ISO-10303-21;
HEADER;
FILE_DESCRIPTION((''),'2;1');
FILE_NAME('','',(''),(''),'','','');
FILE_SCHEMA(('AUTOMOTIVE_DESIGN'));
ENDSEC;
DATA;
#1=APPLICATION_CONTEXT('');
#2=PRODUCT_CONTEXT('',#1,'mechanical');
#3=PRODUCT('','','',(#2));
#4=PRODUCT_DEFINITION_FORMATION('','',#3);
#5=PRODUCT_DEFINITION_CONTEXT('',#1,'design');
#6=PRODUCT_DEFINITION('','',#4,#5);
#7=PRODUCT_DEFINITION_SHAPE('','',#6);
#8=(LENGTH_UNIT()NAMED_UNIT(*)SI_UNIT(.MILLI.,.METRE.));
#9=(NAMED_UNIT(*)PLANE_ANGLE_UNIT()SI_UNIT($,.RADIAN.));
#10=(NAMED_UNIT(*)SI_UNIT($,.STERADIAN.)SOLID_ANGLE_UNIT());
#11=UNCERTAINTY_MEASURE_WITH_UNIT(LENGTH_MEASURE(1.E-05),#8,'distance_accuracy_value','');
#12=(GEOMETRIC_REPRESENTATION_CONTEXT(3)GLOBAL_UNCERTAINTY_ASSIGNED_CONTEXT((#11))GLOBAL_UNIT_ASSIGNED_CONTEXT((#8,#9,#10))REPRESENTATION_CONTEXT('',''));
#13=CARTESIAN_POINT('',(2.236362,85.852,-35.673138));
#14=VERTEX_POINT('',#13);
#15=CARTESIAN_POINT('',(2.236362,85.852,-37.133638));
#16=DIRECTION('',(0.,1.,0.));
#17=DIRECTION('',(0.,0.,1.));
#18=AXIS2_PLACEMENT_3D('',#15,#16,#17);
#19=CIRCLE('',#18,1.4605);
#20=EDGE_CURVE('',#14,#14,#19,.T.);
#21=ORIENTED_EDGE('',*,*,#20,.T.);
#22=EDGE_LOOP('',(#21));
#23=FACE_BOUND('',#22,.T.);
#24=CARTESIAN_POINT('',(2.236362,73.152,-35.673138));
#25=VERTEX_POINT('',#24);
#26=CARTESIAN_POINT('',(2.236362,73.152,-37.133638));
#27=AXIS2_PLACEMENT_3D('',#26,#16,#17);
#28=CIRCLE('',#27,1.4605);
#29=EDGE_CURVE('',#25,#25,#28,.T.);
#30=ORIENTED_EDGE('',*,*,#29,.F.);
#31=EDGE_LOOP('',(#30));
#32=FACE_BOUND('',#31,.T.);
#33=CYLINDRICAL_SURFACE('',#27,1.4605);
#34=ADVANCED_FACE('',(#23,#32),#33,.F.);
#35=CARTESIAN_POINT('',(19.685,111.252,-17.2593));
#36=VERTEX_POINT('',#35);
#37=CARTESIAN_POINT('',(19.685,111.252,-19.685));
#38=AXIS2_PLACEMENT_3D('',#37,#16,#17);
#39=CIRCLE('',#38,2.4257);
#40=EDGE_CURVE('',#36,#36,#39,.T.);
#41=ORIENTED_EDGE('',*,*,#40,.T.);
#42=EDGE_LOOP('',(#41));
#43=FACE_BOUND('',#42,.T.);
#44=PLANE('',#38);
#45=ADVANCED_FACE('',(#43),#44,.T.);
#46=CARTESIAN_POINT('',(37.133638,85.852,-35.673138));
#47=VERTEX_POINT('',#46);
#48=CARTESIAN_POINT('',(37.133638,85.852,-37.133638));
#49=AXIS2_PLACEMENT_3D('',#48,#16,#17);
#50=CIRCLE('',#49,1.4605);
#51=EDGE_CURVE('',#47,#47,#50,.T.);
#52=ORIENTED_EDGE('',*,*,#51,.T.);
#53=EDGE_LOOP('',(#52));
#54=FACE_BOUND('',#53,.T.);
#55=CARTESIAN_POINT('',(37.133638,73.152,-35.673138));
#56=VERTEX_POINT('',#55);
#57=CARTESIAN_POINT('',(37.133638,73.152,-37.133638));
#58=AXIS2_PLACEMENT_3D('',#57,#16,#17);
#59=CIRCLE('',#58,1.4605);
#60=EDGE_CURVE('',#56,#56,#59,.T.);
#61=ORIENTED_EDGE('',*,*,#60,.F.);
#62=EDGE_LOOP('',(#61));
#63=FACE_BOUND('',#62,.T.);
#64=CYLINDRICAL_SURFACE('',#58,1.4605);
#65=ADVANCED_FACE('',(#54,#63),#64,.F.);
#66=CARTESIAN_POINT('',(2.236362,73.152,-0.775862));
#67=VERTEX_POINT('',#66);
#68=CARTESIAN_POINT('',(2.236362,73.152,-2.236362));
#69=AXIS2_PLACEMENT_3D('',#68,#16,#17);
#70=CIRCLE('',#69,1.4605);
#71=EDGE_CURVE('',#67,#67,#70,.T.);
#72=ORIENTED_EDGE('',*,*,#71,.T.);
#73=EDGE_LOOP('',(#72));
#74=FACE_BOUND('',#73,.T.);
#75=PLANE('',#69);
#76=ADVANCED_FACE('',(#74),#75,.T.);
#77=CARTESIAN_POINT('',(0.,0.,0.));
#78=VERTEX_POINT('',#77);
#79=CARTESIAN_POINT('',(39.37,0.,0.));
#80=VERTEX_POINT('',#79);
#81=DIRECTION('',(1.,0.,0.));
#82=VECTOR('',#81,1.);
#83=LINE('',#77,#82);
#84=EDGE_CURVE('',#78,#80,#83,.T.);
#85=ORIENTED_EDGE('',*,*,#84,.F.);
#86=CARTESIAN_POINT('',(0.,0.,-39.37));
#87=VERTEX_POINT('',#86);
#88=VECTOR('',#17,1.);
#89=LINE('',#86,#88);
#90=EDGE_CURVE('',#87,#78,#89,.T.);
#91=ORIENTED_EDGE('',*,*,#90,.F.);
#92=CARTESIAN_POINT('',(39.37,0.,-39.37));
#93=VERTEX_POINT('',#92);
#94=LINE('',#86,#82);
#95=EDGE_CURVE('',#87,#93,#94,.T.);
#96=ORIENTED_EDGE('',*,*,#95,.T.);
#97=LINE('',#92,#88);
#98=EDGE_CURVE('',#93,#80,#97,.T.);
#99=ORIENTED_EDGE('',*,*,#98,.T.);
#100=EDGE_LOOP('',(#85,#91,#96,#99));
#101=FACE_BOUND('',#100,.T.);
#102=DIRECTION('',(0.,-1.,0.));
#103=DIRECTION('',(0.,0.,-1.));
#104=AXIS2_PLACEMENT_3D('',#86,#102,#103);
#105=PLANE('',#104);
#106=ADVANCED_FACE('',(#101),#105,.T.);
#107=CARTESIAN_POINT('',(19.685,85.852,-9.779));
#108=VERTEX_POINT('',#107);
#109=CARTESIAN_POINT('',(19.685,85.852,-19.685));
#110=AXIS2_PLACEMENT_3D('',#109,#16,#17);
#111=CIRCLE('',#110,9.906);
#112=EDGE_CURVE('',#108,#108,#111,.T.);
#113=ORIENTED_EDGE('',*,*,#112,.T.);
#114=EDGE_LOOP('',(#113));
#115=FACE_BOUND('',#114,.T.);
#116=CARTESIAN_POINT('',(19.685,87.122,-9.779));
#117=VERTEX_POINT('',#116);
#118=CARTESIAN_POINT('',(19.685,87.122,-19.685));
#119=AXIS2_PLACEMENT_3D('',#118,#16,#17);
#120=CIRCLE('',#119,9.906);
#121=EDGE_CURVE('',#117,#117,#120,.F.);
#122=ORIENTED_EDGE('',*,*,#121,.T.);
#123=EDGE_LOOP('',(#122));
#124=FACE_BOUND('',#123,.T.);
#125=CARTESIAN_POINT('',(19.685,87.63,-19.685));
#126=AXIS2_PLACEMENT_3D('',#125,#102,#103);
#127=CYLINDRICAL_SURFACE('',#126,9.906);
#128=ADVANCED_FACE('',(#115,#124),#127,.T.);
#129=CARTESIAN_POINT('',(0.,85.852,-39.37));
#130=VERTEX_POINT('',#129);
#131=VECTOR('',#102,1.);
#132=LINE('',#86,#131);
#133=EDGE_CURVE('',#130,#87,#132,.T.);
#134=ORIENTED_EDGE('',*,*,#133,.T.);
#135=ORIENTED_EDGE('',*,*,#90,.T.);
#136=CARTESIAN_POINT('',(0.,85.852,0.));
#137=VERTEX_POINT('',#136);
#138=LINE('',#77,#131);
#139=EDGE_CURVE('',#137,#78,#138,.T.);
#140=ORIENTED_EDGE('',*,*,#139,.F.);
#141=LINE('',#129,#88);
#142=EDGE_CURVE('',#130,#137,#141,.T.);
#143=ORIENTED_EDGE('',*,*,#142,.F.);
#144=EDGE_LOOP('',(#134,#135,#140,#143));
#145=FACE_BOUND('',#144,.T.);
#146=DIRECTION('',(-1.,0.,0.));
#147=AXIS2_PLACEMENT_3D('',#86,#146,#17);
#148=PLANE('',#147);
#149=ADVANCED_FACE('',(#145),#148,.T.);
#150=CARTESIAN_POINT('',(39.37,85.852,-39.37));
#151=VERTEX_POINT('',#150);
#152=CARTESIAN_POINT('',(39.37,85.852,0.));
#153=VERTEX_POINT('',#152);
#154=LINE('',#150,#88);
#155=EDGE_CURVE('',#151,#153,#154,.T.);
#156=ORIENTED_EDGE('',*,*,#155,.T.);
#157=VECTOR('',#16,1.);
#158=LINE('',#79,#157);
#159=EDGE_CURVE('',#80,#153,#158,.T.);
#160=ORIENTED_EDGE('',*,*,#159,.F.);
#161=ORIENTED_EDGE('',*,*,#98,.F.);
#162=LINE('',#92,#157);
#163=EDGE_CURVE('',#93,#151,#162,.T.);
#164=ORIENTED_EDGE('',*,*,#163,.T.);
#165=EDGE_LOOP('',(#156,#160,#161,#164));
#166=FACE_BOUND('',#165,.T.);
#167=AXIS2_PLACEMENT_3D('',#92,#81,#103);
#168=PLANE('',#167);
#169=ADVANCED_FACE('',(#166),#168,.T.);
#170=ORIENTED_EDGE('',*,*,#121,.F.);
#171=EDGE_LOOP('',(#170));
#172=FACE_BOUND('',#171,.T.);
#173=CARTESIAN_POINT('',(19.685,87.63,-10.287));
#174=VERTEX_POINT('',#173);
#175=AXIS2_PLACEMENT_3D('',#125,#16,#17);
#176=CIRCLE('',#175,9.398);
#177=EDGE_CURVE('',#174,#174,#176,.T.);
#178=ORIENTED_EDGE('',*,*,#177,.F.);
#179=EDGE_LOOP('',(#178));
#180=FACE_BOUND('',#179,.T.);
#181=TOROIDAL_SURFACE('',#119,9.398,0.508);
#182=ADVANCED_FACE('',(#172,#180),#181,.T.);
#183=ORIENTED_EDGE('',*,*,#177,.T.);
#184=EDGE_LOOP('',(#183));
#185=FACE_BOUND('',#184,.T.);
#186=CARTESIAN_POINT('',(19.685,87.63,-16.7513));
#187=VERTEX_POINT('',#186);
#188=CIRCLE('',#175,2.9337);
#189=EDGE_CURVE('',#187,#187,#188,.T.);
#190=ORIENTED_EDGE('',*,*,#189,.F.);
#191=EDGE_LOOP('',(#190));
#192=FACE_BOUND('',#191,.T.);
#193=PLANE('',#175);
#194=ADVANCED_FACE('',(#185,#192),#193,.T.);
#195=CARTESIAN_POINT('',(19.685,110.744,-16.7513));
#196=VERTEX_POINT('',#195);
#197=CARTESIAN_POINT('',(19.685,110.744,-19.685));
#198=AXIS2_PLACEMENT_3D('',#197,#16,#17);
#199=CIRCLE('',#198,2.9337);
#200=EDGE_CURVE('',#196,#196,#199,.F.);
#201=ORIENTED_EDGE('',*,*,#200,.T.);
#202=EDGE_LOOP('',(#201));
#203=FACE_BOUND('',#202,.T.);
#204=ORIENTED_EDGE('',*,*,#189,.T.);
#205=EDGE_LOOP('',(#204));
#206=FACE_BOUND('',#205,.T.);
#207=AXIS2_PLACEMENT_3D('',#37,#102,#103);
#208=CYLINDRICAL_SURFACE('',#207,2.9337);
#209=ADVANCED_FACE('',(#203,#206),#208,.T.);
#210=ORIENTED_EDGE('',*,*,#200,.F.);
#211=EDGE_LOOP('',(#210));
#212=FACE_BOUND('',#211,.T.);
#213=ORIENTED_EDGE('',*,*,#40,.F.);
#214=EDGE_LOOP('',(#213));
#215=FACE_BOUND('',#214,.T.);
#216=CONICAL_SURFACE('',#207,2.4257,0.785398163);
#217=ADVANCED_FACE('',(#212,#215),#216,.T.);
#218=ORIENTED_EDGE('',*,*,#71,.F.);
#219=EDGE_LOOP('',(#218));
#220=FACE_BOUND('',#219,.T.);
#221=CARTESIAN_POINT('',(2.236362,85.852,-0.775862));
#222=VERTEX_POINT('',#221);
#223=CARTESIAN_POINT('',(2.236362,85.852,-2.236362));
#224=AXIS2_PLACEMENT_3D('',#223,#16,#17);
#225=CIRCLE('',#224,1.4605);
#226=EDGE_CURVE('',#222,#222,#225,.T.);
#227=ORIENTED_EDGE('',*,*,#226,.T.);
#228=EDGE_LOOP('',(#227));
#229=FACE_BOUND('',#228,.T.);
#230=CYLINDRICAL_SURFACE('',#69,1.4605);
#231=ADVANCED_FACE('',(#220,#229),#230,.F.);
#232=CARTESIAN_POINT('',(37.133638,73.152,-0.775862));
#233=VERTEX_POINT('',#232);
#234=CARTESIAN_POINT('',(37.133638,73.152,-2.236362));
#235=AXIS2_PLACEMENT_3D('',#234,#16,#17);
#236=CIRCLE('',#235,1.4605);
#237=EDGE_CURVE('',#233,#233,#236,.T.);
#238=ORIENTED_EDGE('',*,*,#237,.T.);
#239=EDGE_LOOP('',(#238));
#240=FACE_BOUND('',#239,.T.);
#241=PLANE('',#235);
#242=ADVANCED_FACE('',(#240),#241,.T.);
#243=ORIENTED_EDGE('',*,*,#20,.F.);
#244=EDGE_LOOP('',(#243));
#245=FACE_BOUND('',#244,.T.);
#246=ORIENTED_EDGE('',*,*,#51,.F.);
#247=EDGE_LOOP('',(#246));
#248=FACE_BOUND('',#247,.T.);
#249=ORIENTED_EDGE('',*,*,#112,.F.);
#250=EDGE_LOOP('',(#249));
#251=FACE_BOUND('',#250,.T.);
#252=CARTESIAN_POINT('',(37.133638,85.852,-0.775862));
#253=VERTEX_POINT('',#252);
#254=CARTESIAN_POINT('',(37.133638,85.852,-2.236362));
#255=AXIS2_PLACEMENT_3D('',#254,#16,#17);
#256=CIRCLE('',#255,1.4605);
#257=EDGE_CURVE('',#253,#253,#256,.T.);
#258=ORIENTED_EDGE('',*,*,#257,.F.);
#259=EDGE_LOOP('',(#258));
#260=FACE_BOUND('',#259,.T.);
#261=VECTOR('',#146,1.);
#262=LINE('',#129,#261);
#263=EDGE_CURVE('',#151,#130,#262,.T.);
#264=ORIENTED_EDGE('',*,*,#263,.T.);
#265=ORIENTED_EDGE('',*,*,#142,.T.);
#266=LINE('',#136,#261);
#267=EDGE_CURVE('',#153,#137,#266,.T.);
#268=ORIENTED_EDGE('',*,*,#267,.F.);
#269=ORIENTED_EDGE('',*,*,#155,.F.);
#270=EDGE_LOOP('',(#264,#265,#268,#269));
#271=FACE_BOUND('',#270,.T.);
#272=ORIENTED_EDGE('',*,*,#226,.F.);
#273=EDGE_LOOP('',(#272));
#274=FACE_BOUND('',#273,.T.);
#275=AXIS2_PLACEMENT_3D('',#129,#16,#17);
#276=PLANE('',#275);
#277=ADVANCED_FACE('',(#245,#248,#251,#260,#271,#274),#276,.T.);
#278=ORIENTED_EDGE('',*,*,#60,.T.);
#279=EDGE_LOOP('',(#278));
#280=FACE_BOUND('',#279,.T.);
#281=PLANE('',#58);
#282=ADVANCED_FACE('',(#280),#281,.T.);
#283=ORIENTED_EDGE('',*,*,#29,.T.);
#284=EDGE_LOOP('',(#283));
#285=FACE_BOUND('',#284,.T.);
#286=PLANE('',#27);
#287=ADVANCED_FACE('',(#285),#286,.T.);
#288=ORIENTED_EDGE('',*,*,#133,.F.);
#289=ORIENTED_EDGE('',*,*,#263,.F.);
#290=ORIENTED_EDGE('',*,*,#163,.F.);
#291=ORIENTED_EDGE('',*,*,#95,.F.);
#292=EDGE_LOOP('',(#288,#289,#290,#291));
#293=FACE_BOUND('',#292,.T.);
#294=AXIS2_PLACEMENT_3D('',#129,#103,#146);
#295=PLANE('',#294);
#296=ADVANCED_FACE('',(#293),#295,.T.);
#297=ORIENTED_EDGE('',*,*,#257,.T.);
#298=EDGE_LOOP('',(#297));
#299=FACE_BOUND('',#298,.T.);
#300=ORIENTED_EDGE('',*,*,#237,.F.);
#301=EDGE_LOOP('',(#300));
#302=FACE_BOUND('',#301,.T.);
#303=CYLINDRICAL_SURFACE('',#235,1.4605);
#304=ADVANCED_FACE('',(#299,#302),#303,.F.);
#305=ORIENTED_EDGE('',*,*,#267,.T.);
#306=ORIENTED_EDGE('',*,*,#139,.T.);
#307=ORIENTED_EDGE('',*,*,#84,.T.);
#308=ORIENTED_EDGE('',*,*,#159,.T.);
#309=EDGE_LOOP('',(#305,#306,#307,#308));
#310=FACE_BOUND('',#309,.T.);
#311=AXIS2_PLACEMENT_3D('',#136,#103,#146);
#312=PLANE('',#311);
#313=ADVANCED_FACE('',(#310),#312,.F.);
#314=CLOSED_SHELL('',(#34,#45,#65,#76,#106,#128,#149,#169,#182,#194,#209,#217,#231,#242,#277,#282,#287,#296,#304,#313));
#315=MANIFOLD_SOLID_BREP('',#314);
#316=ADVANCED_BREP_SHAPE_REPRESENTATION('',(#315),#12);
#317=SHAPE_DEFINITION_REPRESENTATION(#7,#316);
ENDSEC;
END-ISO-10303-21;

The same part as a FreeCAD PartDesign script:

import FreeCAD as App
import Part
import Sketcher

V = App.Vector
Q = App.Units.Quantity


def edges_at(feature, points):
    """Names of the edges that pass closest to the given points."""
    edges = feature.Shape.Edges
    near = lambda p: min(range(len(edges)), key=lambda i: edges[i].distToShape(Part.Vertex(*p))[0])
    return sorted({f"Edge{near(p) + 1}" for p in points})

doc = App.newDocument("Part")
body = doc.addObject("PartDesign::Body", "Body")

sketch1 = body.newObject("Sketcher::SketchObject", "Sketch")
sketch1.AttachmentSupport = (doc.getObject("XY_Plane"), [""])
sketch1.MapMode = "FlatFace"
sketch1.addGeometry([
    Part.LineSegment(V(0, 86, 0), V(0, 0, 0)),
    Part.LineSegment(V(0, 0, 0), V(39, 0, 0)),
    Part.LineSegment(V(39, 0, 0), V(39, 86, 0)),
    Part.LineSegment(V(39, 86, 0), V(0, 86, 0)),
], False)
sketch1.addConstraint([
    Sketcher.Constraint("Coincident", 0, 2, 1, 1),
    Sketcher.Constraint("Coincident", 1, 2, 2, 1),
    Sketcher.Constraint("Coincident", 2, 2, 3, 1),
    Sketcher.Constraint("Coincident", 3, 2, 0, 1),
    Sketcher.Constraint("Vertical", 0),
    Sketcher.Constraint("Horizontal", 1),
    Sketcher.Constraint("Vertical", 2),
    Sketcher.Constraint("Horizontal", 3),
    Sketcher.Constraint("Coincident", 0, 2, -1, 1),
    Sketcher.Constraint("DistanceX", 1, 1, 1, 2, Q("1.55 in")),
    Sketcher.Constraint("DistanceY", 0, 2, 0, 1, Q("3.38 in")),
])
pad1 = body.newObject("PartDesign::Pad", "Pad")
pad1.Profile = sketch1
pad1.Length = Q("1.55 in")
pad1.Reversed = True

sketch2 = body.newObject("Sketcher::SketchObject", "Sketch001")
sketch2.AttachmentSupport = (doc.getObject("XZ_Plane"), [""])
sketch2.MapMode = "FlatFace"
sketch2.AttachmentOffset = App.Placement(V(0, 0, -3.38 * 25.4), App.Rotation())
sketch2.addGeometry(Part.Circle(V(19.7, -19.7, 0), V(0, 0, 1), 2.9), False)
sketch2.addConstraint([
    Sketcher.Constraint("Diameter", 0, Q("0.231 in")),
    Sketcher.Constraint("DistanceX", -1, 1, 0, 3, Q("0.775 in")),
    Sketcher.Constraint("DistanceY", 0, 3, -1, 1, Q("0.775 in")),
])
pad2 = body.newObject("PartDesign::Pad", "Pad001")
pad2.Profile = sketch2
pad2.Length = Q("1 in")
pad2.Reversed = True
doc.recompute()

chamfer = body.newObject("PartDesign::Chamfer", "Chamfer")
chamfer.Base = (pad2, edges_at(pad2, [(19.685, 111.252, -22.619)]))
chamfer.Size = Q("0.02 in")

sketch3 = body.newObject("Sketcher::SketchObject", "Sketch002")
sketch3.AttachmentSupport = (doc.getObject("XZ_Plane"), [""])
sketch3.MapMode = "FlatFace"
sketch3.AttachmentOffset = App.Placement(V(0, 0, -3.38 * 25.4), App.Rotation())
sketch3.addGeometry(Part.Circle(V(20, -20, 0), V(0, 0, 1), 10), False)
sketch3.addConstraint([
    Sketcher.Constraint("Diameter", 0, Q("0.78 in")),
    Sketcher.Constraint("DistanceX", -1, 1, 0, 3, Q("0.775 in")),
    Sketcher.Constraint("DistanceY", 0, 3, -1, 1, Q("0.775 in")),
])
pad3 = body.newObject("PartDesign::Pad", "Pad002")
pad3.Profile = sketch3
pad3.Length = Q("0.07 in")
pad3.Reversed = True
doc.recompute()

fillet = body.newObject("PartDesign::Fillet", "Fillet")
fillet.Base = (pad3, edges_at(pad3, [(19.685, 87.63, -29.591)]))
fillet.Radius = Q("0.02 in")

sketch4 = body.newObject("Sketcher::SketchObject", "Sketch003")
sketch4.AttachmentSupport = (doc.getObject("XZ_Plane"), [""])
sketch4.MapMode = "FlatFace"
sketch4.AttachmentOffset = App.Placement(V(0, 0, -3.38 * 25.4), App.Rotation())
sketch4.addGeometry([
    Part.Circle(V(2.2, -37.1, 0), V(0, 0, 1), 1.5),
    Part.Circle(V(37.1, -37.1, 0), V(0, 0, 1), 1.5),
    Part.Circle(V(37.1, -2.2, 0), V(0, 0, 1), 1.5),
    Part.Circle(V(2.2, -2.2, 0), V(0, 0, 1), 1.5),
], False)
sketch4.addConstraint([
    Sketcher.Constraint("Equal", 0, 1),
    Sketcher.Constraint("Equal", 1, 2),
    Sketcher.Constraint("Equal", 2, 3),
    Sketcher.Constraint("Horizontal", 0, 3, 1, 3),
    Sketcher.Constraint("Horizontal", 2, 3, 3, 3),
    Sketcher.Constraint("Vertical", 1, 3, 2, 3),
    Sketcher.Constraint("Vertical", 0, 3, 3, 3),
    Sketcher.Constraint("Diameter", 0, Q("0.115 in")),
    Sketcher.Constraint("DistanceX", -1, 1, 0, 3, Q("2.236362 mm")),
    Sketcher.Constraint("DistanceY", 0, 3, -1, 1, Q("37.133638 mm")),
    Sketcher.Constraint("DistanceX", -1, 1, 1, 3, Q("37.133638 mm")),
    Sketcher.Constraint("DistanceY", 2, 3, -1, 1, Q("2.236362 mm")),
])
pocket1 = body.newObject("PartDesign::Pocket", "Pocket")
pocket1.Profile = sketch4
pocket1.Length = Q("0.5 in")
pocket1.Reversed = True

doc.recompute()
